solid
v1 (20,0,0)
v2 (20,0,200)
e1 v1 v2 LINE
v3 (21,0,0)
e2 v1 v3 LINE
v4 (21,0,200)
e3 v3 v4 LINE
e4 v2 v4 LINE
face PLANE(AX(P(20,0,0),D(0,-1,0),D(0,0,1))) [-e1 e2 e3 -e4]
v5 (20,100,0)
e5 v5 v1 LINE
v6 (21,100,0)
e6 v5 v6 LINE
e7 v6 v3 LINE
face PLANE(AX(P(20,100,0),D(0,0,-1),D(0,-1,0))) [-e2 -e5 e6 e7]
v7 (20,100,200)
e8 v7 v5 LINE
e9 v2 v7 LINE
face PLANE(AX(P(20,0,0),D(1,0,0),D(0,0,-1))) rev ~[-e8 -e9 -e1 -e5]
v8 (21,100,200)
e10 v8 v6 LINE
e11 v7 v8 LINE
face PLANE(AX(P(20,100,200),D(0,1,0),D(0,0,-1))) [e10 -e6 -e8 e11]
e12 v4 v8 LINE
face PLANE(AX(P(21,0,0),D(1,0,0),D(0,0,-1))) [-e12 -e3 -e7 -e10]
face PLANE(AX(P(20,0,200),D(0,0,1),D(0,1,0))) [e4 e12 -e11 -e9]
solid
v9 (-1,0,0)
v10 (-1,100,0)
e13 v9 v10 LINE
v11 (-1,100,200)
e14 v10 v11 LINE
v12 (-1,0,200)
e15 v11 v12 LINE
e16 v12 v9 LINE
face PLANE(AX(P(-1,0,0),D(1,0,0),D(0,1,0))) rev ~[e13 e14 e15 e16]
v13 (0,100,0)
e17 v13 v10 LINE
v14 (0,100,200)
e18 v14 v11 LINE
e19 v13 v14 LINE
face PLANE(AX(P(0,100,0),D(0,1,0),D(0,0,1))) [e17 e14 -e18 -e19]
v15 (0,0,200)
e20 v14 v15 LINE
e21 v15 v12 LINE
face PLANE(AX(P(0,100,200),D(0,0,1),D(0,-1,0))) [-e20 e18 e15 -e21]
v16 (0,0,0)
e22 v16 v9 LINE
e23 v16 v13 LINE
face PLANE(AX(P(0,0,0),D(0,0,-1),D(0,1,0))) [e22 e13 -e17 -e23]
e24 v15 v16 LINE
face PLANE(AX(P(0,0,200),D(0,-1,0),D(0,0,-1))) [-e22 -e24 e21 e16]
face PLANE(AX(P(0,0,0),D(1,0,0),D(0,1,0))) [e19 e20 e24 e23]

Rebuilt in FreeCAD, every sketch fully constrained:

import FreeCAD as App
import Part
import Sketcher
from FreeCAD import Vector
Q = App.Units.Quantity


def add_polygon(sketch, points):
    """Adds a closed chain of lines whose ends are joined by coincident constraints."""
    first, n = sketch.GeometryCount, len(points)
    for a, b in zip(points, points[1:] + points[:1]):
        sketch.addGeometry(Part.LineSegment(App.Vector(*a, 0), App.Vector(*b, 0)), False)
    for i in range(n):
        sketch.addConstraint(Sketcher.Constraint("Coincident", first + i, 2, first + (i + 1) % n, 1))

doc = App.newDocument("Part")
body = doc.addObject("PartDesign::Body", "Body")
body.AllowCompound = True

# Sketch on YZ plane
sketch1 = doc.addObject("Sketcher::SketchObject", "Sketch")
body.addObject(sketch1)
sketch1.AttachmentSupport = (doc.YZ_Plane, [""])
sketch1.MapMode = "FlatFace"
add_polygon(sketch1, [(0, 200), (0, 0), (100, 0), (100, 200)])  # lines 0-3
sketch1.addConstraint(Sketcher.Constraint("Vertical", 0))
sketch1.addConstraint(Sketcher.Constraint("Horizontal", 1))
sketch1.addConstraint(Sketcher.Constraint("Vertical", 2))
sketch1.addConstraint(Sketcher.Constraint("Horizontal", 3))
sketch1.addConstraint(Sketcher.Constraint("Coincident", 0, 2, -1, 1))
sketch1.addConstraint(Sketcher.Constraint("DistanceX", 1, 1, 1, 2, Q("100 mm")))
sketch1.addConstraint(Sketcher.Constraint("DistanceY", 0, 2, 0, 1, Q("200 mm")))
pad1 = doc.addObject("PartDesign::Pad", "Pad")
body.addObject(pad1)
pad1.Profile = sketch1
pad1.Length = 1
pad1.Reversed = True

# Sketch on YZ plane
sketch2 = doc.addObject("Sketcher::SketchObject", "Sketch001")
body.addObject(sketch2)
sketch2.AttachmentSupport = (doc.YZ_Plane, [""])
sketch2.MapMode = "FlatFace"
sketch2.AttachmentOffset = App.Placement(Vector(0, 0, 20), App.Rotation())
add_polygon(sketch2, [(0, 0), (100, 0), (100, 200), (0, 200)])  # lines 0-3
sketch2.addConstraint(Sketcher.Constraint("Horizontal", 0))
sketch2.addConstraint(Sketcher.Constraint("Vertical", 1))
sketch2.addConstraint(Sketcher.Constraint("Horizontal", 2))
sketch2.addConstraint(Sketcher.Constraint("Vertical", 3))
sketch2.addConstraint(Sketcher.Constraint("Coincident", 3, 2, -1, 1))
sketch2.addConstraint(Sketcher.Constraint("DistanceX", 0, 1, 0, 2, Q("100 mm")))
sketch2.addConstraint(Sketcher.Constraint("DistanceY", 1, 1, 1, 2, Q("200 mm")))
pad2 = doc.addObject("PartDesign::Pad", "Pad001")
body.addObject(pad2)
pad2.Profile = sketch2
pad2.Length = 1

doc.recompute()
